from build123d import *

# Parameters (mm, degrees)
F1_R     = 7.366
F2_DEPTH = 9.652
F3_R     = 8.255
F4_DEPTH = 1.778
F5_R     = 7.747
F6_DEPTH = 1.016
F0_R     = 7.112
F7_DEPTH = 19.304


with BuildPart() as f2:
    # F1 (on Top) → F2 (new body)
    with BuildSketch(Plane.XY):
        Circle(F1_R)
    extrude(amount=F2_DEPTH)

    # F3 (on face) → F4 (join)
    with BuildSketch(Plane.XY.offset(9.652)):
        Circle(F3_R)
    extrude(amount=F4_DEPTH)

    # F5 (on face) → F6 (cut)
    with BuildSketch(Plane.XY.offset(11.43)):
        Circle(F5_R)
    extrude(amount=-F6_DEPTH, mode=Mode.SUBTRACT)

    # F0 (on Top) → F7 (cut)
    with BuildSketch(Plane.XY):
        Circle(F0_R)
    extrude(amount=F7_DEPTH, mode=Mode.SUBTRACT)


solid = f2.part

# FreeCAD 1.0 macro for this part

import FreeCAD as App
import Part
import Sketcher
Q = App.Units.Quantity

doc = App.newDocument("Part")
body = doc.addObject("PartDesign::Body", "Body")

# Sketch on XY plane
sketch1 = body.newObject("Sketcher::SketchObject", "Sketch")
sketch1.AttachmentSupport = (doc.getObject("XY_Plane"), [""])
sketch1.MapMode = "FlatFace"
sketch1.addGeometry(Part.Circle(App.Vector(0, 0, 0), App.Vector(0, 0, 1), 7), False)
sketch1.addConstraint([
    Sketcher.Constraint("Coincident", 0, 3, -1, 1),
    Sketcher.Constraint("Diameter", 0, Q("0.58 in")),
])
pad1 = body.newObject("PartDesign::Pad", "Pad")
pad1.Profile = sketch1
pad1.Length = Q("0.38 in")

# Sketch on XY plane
sketch2 = body.newObject("Sketcher::SketchObject", "Sketch001")
sketch2.AttachmentSupport = (doc.getObject("XY_Plane"), [""])
sketch2.MapMode = "FlatFace"
sketch2.AttachmentOffset = App.Placement(App.Vector(0, 0, 0.38 * 25.4), App.Rotation())
sketch2.addGeometry(Part.Circle(App.Vector(0, 0, 0), App.Vector(0, 0, 1), 8), False)
sketch2.addConstraint([
    Sketcher.Constraint("Coincident", 0, 3, -1, 1),
    Sketcher.Constraint("Diameter", 0, Q("0.65 in")),
])
pad2 = body.newObject("PartDesign::Pad", "Pad001")
pad2.Profile = sketch2
pad2.Length = Q("0.07 in")

# Sketch on XY plane
sketch3 = body.newObject("Sketcher::SketchObject", "Sketch002")
sketch3.AttachmentSupport = (doc.getObject("XY_Plane"), [""])
sketch3.MapMode = "FlatFace"
sketch3.AttachmentOffset = App.Placement(App.Vector(0, 0, 0.45 * 25.4), App.Rotation())
sketch3.addGeometry(Part.Circle(App.Vector(0, 0, 0), App.Vector(0, 0, 1), 8), False)
sketch3.addConstraint([
    Sketcher.Constraint("Coincident", 0, 3, -1, 1),
    Sketcher.Constraint("Diameter", 0, Q("0.61 in")),
])
pocket1 = body.newObject("PartDesign::Pocket", "Pocket")
pocket1.Profile = sketch3
pocket1.Length = Q("0.04 in")

# Sketch on XY plane
sketch4 = body.newObject("Sketcher::SketchObject", "Sketch003")
sketch4.AttachmentSupport = (doc.getObject("XY_Plane"), [""])
sketch4.MapMode = "FlatFace"
sketch4.addGeometry(Part.Circle(App.Vector(0, 0, 0), App.Vector(0, 0, 1), 7), False)
sketch4.addConstraint([
    Sketcher.Constraint("Coincident", 0, 3, -1, 1),
    Sketcher.Constraint("Diameter", 0, Q("0.56 in")),
])
pocket2 = body.newObject("PartDesign::Pocket", "Pocket001")
pocket2.Profile = sketch4
pocket2.Length = Q("0.76 in")
pocket2.Reversed = True

doc.recompute()
